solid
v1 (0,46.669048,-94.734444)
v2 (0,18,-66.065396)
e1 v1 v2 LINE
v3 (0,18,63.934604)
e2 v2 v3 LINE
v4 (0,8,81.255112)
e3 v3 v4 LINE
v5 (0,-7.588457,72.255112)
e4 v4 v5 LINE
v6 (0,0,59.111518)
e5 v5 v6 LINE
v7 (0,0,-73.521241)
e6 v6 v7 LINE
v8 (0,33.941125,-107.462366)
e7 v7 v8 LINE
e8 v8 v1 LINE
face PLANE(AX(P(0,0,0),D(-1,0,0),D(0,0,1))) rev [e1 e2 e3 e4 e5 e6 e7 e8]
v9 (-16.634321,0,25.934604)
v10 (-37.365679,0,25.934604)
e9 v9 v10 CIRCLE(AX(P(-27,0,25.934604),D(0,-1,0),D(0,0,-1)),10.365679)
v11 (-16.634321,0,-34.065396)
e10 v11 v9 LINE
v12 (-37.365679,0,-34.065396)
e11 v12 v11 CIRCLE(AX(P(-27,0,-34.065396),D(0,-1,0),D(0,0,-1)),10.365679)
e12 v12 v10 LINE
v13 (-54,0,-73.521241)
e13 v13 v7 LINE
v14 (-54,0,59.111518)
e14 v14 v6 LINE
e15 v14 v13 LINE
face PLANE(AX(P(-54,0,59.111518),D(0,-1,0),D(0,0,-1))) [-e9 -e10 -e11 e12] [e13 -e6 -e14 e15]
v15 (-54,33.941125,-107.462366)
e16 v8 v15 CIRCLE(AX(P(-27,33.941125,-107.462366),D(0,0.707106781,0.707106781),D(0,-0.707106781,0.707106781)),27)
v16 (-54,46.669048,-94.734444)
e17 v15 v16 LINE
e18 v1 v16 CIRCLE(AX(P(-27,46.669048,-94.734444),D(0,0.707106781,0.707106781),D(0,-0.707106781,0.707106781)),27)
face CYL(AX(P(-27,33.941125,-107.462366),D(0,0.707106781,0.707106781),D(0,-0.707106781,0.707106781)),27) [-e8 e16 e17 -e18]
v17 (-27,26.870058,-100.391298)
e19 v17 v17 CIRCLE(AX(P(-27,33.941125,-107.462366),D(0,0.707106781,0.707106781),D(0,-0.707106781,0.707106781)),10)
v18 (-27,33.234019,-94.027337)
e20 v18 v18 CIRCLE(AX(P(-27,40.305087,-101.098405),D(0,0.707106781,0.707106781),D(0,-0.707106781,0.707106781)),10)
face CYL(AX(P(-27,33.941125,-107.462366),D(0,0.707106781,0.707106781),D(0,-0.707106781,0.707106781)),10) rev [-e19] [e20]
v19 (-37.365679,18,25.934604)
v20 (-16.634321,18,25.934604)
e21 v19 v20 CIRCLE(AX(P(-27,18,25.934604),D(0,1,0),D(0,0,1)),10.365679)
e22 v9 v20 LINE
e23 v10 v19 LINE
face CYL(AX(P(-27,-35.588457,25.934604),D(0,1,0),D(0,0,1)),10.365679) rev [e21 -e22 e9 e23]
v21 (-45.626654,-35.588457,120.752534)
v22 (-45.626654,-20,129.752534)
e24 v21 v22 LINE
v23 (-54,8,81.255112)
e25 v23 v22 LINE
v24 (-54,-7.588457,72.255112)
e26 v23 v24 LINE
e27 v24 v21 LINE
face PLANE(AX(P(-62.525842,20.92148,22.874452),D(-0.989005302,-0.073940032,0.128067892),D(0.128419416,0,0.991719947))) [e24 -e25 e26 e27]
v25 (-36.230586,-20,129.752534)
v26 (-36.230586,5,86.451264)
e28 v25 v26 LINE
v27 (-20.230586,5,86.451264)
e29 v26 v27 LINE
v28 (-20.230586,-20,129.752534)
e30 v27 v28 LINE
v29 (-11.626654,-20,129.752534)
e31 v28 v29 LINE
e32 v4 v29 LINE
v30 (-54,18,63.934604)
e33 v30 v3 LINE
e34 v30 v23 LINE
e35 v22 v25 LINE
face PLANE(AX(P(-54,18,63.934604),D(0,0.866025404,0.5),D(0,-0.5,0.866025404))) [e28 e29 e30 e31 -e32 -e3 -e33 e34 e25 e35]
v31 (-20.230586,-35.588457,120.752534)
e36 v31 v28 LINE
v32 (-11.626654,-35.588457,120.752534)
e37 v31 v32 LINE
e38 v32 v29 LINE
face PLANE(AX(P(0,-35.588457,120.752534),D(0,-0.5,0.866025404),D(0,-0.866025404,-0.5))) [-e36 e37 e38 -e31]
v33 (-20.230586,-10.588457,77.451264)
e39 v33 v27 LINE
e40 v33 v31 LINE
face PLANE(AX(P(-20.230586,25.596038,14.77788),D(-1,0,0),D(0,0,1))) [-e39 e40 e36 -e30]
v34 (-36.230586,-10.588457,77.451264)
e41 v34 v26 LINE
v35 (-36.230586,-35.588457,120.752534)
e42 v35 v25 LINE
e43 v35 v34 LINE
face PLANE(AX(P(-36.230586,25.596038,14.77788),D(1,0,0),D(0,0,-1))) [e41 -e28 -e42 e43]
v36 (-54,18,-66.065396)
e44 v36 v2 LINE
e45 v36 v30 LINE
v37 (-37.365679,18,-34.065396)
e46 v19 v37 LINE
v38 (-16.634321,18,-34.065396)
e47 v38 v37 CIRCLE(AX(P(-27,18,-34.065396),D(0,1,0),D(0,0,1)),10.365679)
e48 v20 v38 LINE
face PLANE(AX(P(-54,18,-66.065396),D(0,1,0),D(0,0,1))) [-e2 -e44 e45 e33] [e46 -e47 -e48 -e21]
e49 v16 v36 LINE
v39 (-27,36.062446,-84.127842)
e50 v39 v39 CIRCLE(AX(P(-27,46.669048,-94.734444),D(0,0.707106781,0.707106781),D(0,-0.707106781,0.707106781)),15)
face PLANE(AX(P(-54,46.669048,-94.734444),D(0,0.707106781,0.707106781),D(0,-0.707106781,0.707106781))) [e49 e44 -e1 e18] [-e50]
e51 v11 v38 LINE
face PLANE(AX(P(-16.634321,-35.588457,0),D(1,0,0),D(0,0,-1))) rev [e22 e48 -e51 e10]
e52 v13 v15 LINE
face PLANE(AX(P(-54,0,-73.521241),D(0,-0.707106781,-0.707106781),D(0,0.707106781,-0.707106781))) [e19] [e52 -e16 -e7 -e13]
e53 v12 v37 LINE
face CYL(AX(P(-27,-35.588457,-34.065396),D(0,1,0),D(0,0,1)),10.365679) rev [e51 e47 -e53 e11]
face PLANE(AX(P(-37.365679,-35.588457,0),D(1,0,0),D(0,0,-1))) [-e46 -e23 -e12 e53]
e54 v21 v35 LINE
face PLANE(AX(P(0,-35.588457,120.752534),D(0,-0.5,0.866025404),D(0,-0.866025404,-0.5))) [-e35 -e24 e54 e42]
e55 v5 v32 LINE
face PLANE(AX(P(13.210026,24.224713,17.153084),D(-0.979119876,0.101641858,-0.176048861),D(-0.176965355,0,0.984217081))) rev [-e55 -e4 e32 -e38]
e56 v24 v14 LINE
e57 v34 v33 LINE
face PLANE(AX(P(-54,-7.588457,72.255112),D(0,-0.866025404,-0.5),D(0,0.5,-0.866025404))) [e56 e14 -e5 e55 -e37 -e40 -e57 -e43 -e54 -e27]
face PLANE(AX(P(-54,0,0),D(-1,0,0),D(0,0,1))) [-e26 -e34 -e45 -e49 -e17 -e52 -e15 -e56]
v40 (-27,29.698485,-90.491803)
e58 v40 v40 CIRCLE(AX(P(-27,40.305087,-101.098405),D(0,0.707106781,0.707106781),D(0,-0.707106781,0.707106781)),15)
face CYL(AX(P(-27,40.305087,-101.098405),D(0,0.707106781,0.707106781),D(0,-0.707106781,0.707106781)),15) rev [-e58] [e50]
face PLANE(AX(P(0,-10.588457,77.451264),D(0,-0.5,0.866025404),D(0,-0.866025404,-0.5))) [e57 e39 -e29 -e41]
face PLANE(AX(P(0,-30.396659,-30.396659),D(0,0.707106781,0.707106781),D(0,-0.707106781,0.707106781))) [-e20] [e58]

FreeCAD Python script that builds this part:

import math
import FreeCAD as App
import Part
import Sketcher
from FreeCAD import Vector
Q = App.Units.Quantity

doc = App.newDocument("Part")
body = doc.addObject("PartDesign::Body", "Body")

# Sketch on YZ plane
sketch1 = body.newObject("Sketcher::SketchObject", "Sketch")
sketch1.AttachmentSupport = (doc.getObject("YZ_Plane"), [""])
sketch1.MapMode = "FlatFace"
sketch1.addGeometry([
    Part.LineSegment(Vector(0, 59.111518, 0), Vector(0, -73.521241, 0)),  # 0
    Part.LineSegment(Vector(0, -73.521241, 0), Vector(33.941125, -107.462366, 0)),  # 1
    Part.LineSegment(Vector(33.941125, -107.462366, 0), Vector(46.669048, -94.734444, 0)),  # 2
    Part.LineSegment(Vector(46.669048, -94.734444, 0), Vector(18, -66.065396, 0)),  # 3
    Part.LineSegment(Vector(18, -66.065396, 0), Vector(18, 63.934604, 0)),  # 4
    Part.LineSegment(Vector(18, 63.934604, 0), Vector(8, 81.255112, 0)),  # 5
    Part.LineSegment(Vector(8, 81.255112, 0), Vector(-7.588457, 72.255112, 0)),  # 6
    Part.LineSegment(Vector(-7.588457, 72.255112, 0), Vector(0, 59.111518, 0)),  # 7
], False)
sketch1.addConstraint([
    Sketcher.Constraint("Coincident", 0, 2, 1, 1),
    Sketcher.Constraint("Coincident", 1, 2, 2, 1),
    Sketcher.Constraint("Coincident", 2, 2, 3, 1),
    Sketcher.Constraint("Coincident", 3, 2, 4, 1),
    Sketcher.Constraint("Coincident", 4, 2, 5, 1),
    Sketcher.Constraint("Coincident", 5, 2, 6, 1),
    Sketcher.Constraint("Coincident", 6, 2, 7, 1),
    Sketcher.Constraint("Coincident", 7, 2, 0, 1),
    Sketcher.Constraint("Vertical", 0),
    Sketcher.Constraint("Vertical", 4),
    Sketcher.Constraint("PointOnObject", 0, 2, -2),
    Sketcher.Constraint("Perpendicular", 1, 2),
    Sketcher.Constraint("Perpendicular", 2, 3),
    Sketcher.Constraint("Perpendicular", 5, 6),
    Sketcher.Constraint("Perpendicular", 6, 7),
    Sketcher.Constraint("Equal", 2, 6),
    Sketcher.Constraint("DistanceY", 4, 1, 4, 2, Q("130 mm")),
    Sketcher.Constraint("Angle", 1, Q("-45 deg")),
    Sketcher.Constraint("Angle", 5, Q("120 deg")),
    Sketcher.Constraint("Distance", 1, Q("48 mm")),
    Sketcher.Constraint("Distance", 2, Q("18 mm")),
    Sketcher.Constraint("Distance", 5, Q("20 mm")),
    Sketcher.Constraint("DistanceX", -1, 1, 3, 2, Q("18 mm")),
    Sketcher.Constraint("DistanceY", 0, 2, -1, 1, Q("73.521241 mm")),
])
pad1 = body.newObject("PartDesign::Pad", "Pad")
pad1.Profile = sketch1
pad1.Length = 54
pad1.Reversed = True

# Sketch on an angled plane
sketch2 = body.newObject("Sketcher::SketchObject", "Sketch001")
sketch2.Placement = App.Placement(Vector(0, 41.184495, 23.77788), App.Rotation(Vector(1, 0, 0), Vector(0, 0.5, -0.866025404), Vector(0, 0.866025404, 0.5), "ZXY"))
sketch2.addGeometry([
    Part.LineSegment(Vector(-20.230586, -72.368991, 0), Vector(-20.230586, -122.368991, 0)),  # 0
    Part.LineSegment(Vector(-20.230586, -122.368991, 0), Vector(-11.626654, -122.368991, 0)),  # 1
    Part.LineSegment(Vector(-11.626654, -122.368991, 0), Vector(0, -66.368991, 0)),  # 2
    Part.LineSegment(Vector(0, -66.368991, 0), Vector(-54, -66.368991, 0)),  # 3
    Part.LineSegment(Vector(-54, -66.368991, 0), Vector(-45.626654, -122.368991, 0)),  # 4
    Part.LineSegment(Vector(-45.626654, -122.368991, 0), Vector(-36.230586, -122.368991, 0)),  # 5
    Part.LineSegment(Vector(-36.230586, -122.368991, 0), Vector(-36.230586, -72.368991, 0)),  # 6
    Part.LineSegment(Vector(-36.230586, -72.368991, 0), Vector(-20.230586, -72.368991, 0)),  # 7
], False)
sketch2.addConstraint([
    Sketcher.Constraint("Coincident", 0, 2, 1, 1),
    Sketcher.Constraint("Coincident", 1, 2, 2, 1),
    Sketcher.Constraint("Coincident", 2, 2, 3, 1),
    Sketcher.Constraint("Coincident", 3, 2, 4, 1),
    Sketcher.Constraint("Coincident", 4, 2, 5, 1),
    Sketcher.Constraint("Coincident", 5, 2, 6, 1),
    Sketcher.Constraint("Coincident", 6, 2, 7, 1),
    Sketcher.Constraint("Coincident", 7, 2, 0, 1),
    Sketcher.Constraint("Vertical", 0),
    Sketcher.Constraint("Horizontal", 1),
    Sketcher.Constraint("Horizontal", 3),
    Sketcher.Constraint("Horizontal", 5),
    Sketcher.Constraint("Vertical", 6),
    Sketcher.Constraint("Horizontal", 7),
    Sketcher.Constraint("PointOnObject", 2, 2, -2),
    Sketcher.Constraint("Horizontal", 1, 2, 4, 2),
    Sketcher.Constraint("DistanceX", 3, 2, 3, 1, Q("54 mm")),
    Sketcher.Constraint("DistanceX", 7, 1, 7, 2, Q("16 mm")),
    Sketcher.Constraint("DistanceY", 0, 2, 0, 1, Q("50 mm")),
    Sketcher.Constraint("DistanceY", 1, 2, 2, 2, Q("56 mm")),
    Sketcher.Constraint("DistanceX", 4, 2, 1, 2, Q("34 mm")),
    Sketcher.Constraint("DistanceX", 1, 1, 1, 2, Q("8.603932 mm")),
    Sketcher.Constraint("DistanceY", 0, 2, -1, 1, Q("122.368991 mm")),
    Sketcher.Constraint("Distance", 2, Q("57.194222 mm")),
])
pad2 = body.newObject("PartDesign::Pad", "Pad001")
pad2.Profile = sketch2
pad2.Length = 18
pad2.Reversed = True

# Sketch on an angled plane
sketch3 = body.newObject("Sketcher::SketchObject", "Sketch002")
sketch3.Placement = App.Placement(Vector(0, -24.032698, -24.032698), App.Rotation(Vector(1, 0, 0), Vector(0, 0.707106781, -0.707106781), Vector(0, 0.707106781, 0.707106781), "ZXY"))
sketch3.addGeometry([
    Part.Circle(Vector(-27, 99.987368, 0), Vector(0, 0, 1), 27),
    Part.Circle(Vector(-27, 99.987368, 0), Vector(0, 0, 1), 15),
], False)
sketch3.addConstraint([
    Sketcher.Constraint("Coincident", 1, 3, 0, 3),
    Sketcher.Constraint("Diameter", 0, Q("54 mm")),
    Sketcher.Constraint("Diameter", 1, Q("30 mm")),
    Sketcher.Constraint("DistanceX", 0, 3, -1, 1, Q("27 mm")),
    Sketcher.Constraint("DistanceY", -1, 1, 0, 3, Q("99.987368 mm")),
])
pad3 = body.newObject("PartDesign::Pad", "Pad002")
pad3.Profile = sketch3
pad3.Length = 18
pad3.Reversed = True

# Sketch on an angled plane
sketch4 = body.newObject("Sketcher::SketchObject", "Sketch003")
sketch4.Placement = App.Placement(Vector(0, -24.032698, -24.032698), App.Rotation(Vector(1, 0, 0), Vector(0, 0.707106781, -0.707106781), Vector(0, 0.707106781, 0.707106781), "ZXY"))
sketch4.addGeometry(Part.Circle(Vector(-27, 99.987368, 0), Vector(0, 0, 1), 10), False)
sketch4.addConstraint([
    Sketcher.Constraint("Diameter", 0, Q("20 mm")),
    Sketcher.Constraint("DistanceX", 0, 3, -1, 1, Q("27 mm")),
    Sketcher.Constraint("DistanceY", -1, 1, 0, 3, Q("99.987368 mm")),
])
pocket1 = body.newObject("PartDesign::Pocket", "Pocket")
pocket1.Profile = sketch4
pocket1.Length = 18

# Sketch on an angled plane
sketch5 = body.newObject("Sketcher::SketchObject", "Sketch004")
sketch5.Placement = App.Placement(Vector(0, -24.032698, -24.032698), App.Rotation(Vector(1, 0, 0), Vector(0, 0.707106781, -0.707106781), Vector(0, 0.707106781, 0.707106781), "ZXY"))
sketch5.addGeometry([
    Part.Circle(Vector(-27, 99.987368, 0), Vector(0, 0, 1), 15),
    Part.Circle(Vector(-27, 99.987368, 0), Vector(0, 0, 1), 10),
], False)
sketch5.addConstraint([
    Sketcher.Constraint("Coincident", 1, 3, 0, 3),
    Sketcher.Constraint("Diameter", 0, Q("30 mm")),
    Sketcher.Constraint("Diameter", 1, Q("20 mm")),
    Sketcher.Constraint("DistanceX", 0, 3, -1, 1, Q("27 mm")),
    Sketcher.Constraint("DistanceY", -1, 1, 0, 3, Q("99.987368 mm")),
])
pad4 = body.newObject("PartDesign::Pad", "Pad003")
pad4.Profile = sketch5
pad4.Length = 18
pad4.Reversed = True

# Sketch on an angled plane
sketch6 = body.newObject("Sketcher::SketchObject", "Sketch005")
sketch6.Placement = App.Placement(Vector(0, -24.032698, -24.032698), App.Rotation(Vector(1, 0, 0), Vector(0, 0.707106781, -0.707106781), Vector(0, 0.707106781, 0.707106781), "ZXY"))
sketch6.addGeometry([
    Part.Circle(Vector(-27, 99.987368, 0), Vector(0, 0, 1), 15),
    Part.Circle(Vector(-27, 99.987368, 0), Vector(0, 0, 1), 10),
], False)
sketch6.addConstraint([
    Sketcher.Constraint("Coincident", 1, 3, 0, 3),
    Sketcher.Constraint("Diameter", 0, Q("30 mm")),
    Sketcher.Constraint("Diameter", 1, Q("20 mm")),
    Sketcher.Constraint("DistanceX", 0, 3, -1, 1, Q("27 mm")),
    Sketcher.Constraint("DistanceY", -1, 1, 0, 3, Q("99.987368 mm")),
])
pocket2 = body.newObject("PartDesign::Pocket", "Pocket001")
pocket2.Profile = sketch6
pocket2.Length = 9

# Sketch on XZ plane
sketch7 = body.newObject("Sketcher::SketchObject", "Sketch006")
sketch7.AttachmentSupport = (doc.getObject("XZ_Plane"), [""])
sketch7.MapMode = "FlatFace"
sketch7.AttachmentOffset = App.Placement(Vector(0, 0, -18), App.Rotation())
sketch7.addGeometry([
    Part.LineSegment(Vector(-37.365679, -34.065396, 0), Vector(-37.365679, 25.934604, 0)),
    Part.ArcOfCircle(Part.Circle(Vector(-27, 25.934604, 0), Vector(0, 0, 1), 10.365679), math.radians(0), math.radians(180)),
    Part.LineSegment(Vector(-16.634321, 25.934604, 0), Vector(-16.634321, -34.065396, 0)),
    Part.ArcOfCircle(Part.Circle(Vector(-27, -34.065396, 0), Vector(0, 0, 1), 10.365679), math.radians(180), math.radians(360)),
], False)
sketch7.addConstraint([
    Sketcher.Constraint("Tangent", 0, 2, 1, 2),
    Sketcher.Constraint("Tangent", 1, 1, 2, 1),
    Sketcher.Constraint("Tangent", 2, 2, 3, 2),
    Sketcher.Constraint("Tangent", 3, 1, 0, 1),
    Sketcher.Constraint("Vertical", 0),
    Sketcher.Constraint("Vertical", 2),
    Sketcher.Constraint("DistanceY", 0, 1, 0, 2, Q("60 mm")),
    Sketcher.Constraint("DistanceX", 1, 3, -1, 1, Q("27 mm")),
    Sketcher.Constraint("Radius", 1, Q("10.365679 mm")),
    Sketcher.Constraint("DistanceY", -1, 1, 1, 3, Q("25.934604 mm")),
])
pocket3 = body.newObject("PartDesign::Pocket", "Pocket002")
pocket3.Profile = sketch7
pocket3.Type = "ThroughAll"
pocket3.Reversed = True

doc.recompute()
